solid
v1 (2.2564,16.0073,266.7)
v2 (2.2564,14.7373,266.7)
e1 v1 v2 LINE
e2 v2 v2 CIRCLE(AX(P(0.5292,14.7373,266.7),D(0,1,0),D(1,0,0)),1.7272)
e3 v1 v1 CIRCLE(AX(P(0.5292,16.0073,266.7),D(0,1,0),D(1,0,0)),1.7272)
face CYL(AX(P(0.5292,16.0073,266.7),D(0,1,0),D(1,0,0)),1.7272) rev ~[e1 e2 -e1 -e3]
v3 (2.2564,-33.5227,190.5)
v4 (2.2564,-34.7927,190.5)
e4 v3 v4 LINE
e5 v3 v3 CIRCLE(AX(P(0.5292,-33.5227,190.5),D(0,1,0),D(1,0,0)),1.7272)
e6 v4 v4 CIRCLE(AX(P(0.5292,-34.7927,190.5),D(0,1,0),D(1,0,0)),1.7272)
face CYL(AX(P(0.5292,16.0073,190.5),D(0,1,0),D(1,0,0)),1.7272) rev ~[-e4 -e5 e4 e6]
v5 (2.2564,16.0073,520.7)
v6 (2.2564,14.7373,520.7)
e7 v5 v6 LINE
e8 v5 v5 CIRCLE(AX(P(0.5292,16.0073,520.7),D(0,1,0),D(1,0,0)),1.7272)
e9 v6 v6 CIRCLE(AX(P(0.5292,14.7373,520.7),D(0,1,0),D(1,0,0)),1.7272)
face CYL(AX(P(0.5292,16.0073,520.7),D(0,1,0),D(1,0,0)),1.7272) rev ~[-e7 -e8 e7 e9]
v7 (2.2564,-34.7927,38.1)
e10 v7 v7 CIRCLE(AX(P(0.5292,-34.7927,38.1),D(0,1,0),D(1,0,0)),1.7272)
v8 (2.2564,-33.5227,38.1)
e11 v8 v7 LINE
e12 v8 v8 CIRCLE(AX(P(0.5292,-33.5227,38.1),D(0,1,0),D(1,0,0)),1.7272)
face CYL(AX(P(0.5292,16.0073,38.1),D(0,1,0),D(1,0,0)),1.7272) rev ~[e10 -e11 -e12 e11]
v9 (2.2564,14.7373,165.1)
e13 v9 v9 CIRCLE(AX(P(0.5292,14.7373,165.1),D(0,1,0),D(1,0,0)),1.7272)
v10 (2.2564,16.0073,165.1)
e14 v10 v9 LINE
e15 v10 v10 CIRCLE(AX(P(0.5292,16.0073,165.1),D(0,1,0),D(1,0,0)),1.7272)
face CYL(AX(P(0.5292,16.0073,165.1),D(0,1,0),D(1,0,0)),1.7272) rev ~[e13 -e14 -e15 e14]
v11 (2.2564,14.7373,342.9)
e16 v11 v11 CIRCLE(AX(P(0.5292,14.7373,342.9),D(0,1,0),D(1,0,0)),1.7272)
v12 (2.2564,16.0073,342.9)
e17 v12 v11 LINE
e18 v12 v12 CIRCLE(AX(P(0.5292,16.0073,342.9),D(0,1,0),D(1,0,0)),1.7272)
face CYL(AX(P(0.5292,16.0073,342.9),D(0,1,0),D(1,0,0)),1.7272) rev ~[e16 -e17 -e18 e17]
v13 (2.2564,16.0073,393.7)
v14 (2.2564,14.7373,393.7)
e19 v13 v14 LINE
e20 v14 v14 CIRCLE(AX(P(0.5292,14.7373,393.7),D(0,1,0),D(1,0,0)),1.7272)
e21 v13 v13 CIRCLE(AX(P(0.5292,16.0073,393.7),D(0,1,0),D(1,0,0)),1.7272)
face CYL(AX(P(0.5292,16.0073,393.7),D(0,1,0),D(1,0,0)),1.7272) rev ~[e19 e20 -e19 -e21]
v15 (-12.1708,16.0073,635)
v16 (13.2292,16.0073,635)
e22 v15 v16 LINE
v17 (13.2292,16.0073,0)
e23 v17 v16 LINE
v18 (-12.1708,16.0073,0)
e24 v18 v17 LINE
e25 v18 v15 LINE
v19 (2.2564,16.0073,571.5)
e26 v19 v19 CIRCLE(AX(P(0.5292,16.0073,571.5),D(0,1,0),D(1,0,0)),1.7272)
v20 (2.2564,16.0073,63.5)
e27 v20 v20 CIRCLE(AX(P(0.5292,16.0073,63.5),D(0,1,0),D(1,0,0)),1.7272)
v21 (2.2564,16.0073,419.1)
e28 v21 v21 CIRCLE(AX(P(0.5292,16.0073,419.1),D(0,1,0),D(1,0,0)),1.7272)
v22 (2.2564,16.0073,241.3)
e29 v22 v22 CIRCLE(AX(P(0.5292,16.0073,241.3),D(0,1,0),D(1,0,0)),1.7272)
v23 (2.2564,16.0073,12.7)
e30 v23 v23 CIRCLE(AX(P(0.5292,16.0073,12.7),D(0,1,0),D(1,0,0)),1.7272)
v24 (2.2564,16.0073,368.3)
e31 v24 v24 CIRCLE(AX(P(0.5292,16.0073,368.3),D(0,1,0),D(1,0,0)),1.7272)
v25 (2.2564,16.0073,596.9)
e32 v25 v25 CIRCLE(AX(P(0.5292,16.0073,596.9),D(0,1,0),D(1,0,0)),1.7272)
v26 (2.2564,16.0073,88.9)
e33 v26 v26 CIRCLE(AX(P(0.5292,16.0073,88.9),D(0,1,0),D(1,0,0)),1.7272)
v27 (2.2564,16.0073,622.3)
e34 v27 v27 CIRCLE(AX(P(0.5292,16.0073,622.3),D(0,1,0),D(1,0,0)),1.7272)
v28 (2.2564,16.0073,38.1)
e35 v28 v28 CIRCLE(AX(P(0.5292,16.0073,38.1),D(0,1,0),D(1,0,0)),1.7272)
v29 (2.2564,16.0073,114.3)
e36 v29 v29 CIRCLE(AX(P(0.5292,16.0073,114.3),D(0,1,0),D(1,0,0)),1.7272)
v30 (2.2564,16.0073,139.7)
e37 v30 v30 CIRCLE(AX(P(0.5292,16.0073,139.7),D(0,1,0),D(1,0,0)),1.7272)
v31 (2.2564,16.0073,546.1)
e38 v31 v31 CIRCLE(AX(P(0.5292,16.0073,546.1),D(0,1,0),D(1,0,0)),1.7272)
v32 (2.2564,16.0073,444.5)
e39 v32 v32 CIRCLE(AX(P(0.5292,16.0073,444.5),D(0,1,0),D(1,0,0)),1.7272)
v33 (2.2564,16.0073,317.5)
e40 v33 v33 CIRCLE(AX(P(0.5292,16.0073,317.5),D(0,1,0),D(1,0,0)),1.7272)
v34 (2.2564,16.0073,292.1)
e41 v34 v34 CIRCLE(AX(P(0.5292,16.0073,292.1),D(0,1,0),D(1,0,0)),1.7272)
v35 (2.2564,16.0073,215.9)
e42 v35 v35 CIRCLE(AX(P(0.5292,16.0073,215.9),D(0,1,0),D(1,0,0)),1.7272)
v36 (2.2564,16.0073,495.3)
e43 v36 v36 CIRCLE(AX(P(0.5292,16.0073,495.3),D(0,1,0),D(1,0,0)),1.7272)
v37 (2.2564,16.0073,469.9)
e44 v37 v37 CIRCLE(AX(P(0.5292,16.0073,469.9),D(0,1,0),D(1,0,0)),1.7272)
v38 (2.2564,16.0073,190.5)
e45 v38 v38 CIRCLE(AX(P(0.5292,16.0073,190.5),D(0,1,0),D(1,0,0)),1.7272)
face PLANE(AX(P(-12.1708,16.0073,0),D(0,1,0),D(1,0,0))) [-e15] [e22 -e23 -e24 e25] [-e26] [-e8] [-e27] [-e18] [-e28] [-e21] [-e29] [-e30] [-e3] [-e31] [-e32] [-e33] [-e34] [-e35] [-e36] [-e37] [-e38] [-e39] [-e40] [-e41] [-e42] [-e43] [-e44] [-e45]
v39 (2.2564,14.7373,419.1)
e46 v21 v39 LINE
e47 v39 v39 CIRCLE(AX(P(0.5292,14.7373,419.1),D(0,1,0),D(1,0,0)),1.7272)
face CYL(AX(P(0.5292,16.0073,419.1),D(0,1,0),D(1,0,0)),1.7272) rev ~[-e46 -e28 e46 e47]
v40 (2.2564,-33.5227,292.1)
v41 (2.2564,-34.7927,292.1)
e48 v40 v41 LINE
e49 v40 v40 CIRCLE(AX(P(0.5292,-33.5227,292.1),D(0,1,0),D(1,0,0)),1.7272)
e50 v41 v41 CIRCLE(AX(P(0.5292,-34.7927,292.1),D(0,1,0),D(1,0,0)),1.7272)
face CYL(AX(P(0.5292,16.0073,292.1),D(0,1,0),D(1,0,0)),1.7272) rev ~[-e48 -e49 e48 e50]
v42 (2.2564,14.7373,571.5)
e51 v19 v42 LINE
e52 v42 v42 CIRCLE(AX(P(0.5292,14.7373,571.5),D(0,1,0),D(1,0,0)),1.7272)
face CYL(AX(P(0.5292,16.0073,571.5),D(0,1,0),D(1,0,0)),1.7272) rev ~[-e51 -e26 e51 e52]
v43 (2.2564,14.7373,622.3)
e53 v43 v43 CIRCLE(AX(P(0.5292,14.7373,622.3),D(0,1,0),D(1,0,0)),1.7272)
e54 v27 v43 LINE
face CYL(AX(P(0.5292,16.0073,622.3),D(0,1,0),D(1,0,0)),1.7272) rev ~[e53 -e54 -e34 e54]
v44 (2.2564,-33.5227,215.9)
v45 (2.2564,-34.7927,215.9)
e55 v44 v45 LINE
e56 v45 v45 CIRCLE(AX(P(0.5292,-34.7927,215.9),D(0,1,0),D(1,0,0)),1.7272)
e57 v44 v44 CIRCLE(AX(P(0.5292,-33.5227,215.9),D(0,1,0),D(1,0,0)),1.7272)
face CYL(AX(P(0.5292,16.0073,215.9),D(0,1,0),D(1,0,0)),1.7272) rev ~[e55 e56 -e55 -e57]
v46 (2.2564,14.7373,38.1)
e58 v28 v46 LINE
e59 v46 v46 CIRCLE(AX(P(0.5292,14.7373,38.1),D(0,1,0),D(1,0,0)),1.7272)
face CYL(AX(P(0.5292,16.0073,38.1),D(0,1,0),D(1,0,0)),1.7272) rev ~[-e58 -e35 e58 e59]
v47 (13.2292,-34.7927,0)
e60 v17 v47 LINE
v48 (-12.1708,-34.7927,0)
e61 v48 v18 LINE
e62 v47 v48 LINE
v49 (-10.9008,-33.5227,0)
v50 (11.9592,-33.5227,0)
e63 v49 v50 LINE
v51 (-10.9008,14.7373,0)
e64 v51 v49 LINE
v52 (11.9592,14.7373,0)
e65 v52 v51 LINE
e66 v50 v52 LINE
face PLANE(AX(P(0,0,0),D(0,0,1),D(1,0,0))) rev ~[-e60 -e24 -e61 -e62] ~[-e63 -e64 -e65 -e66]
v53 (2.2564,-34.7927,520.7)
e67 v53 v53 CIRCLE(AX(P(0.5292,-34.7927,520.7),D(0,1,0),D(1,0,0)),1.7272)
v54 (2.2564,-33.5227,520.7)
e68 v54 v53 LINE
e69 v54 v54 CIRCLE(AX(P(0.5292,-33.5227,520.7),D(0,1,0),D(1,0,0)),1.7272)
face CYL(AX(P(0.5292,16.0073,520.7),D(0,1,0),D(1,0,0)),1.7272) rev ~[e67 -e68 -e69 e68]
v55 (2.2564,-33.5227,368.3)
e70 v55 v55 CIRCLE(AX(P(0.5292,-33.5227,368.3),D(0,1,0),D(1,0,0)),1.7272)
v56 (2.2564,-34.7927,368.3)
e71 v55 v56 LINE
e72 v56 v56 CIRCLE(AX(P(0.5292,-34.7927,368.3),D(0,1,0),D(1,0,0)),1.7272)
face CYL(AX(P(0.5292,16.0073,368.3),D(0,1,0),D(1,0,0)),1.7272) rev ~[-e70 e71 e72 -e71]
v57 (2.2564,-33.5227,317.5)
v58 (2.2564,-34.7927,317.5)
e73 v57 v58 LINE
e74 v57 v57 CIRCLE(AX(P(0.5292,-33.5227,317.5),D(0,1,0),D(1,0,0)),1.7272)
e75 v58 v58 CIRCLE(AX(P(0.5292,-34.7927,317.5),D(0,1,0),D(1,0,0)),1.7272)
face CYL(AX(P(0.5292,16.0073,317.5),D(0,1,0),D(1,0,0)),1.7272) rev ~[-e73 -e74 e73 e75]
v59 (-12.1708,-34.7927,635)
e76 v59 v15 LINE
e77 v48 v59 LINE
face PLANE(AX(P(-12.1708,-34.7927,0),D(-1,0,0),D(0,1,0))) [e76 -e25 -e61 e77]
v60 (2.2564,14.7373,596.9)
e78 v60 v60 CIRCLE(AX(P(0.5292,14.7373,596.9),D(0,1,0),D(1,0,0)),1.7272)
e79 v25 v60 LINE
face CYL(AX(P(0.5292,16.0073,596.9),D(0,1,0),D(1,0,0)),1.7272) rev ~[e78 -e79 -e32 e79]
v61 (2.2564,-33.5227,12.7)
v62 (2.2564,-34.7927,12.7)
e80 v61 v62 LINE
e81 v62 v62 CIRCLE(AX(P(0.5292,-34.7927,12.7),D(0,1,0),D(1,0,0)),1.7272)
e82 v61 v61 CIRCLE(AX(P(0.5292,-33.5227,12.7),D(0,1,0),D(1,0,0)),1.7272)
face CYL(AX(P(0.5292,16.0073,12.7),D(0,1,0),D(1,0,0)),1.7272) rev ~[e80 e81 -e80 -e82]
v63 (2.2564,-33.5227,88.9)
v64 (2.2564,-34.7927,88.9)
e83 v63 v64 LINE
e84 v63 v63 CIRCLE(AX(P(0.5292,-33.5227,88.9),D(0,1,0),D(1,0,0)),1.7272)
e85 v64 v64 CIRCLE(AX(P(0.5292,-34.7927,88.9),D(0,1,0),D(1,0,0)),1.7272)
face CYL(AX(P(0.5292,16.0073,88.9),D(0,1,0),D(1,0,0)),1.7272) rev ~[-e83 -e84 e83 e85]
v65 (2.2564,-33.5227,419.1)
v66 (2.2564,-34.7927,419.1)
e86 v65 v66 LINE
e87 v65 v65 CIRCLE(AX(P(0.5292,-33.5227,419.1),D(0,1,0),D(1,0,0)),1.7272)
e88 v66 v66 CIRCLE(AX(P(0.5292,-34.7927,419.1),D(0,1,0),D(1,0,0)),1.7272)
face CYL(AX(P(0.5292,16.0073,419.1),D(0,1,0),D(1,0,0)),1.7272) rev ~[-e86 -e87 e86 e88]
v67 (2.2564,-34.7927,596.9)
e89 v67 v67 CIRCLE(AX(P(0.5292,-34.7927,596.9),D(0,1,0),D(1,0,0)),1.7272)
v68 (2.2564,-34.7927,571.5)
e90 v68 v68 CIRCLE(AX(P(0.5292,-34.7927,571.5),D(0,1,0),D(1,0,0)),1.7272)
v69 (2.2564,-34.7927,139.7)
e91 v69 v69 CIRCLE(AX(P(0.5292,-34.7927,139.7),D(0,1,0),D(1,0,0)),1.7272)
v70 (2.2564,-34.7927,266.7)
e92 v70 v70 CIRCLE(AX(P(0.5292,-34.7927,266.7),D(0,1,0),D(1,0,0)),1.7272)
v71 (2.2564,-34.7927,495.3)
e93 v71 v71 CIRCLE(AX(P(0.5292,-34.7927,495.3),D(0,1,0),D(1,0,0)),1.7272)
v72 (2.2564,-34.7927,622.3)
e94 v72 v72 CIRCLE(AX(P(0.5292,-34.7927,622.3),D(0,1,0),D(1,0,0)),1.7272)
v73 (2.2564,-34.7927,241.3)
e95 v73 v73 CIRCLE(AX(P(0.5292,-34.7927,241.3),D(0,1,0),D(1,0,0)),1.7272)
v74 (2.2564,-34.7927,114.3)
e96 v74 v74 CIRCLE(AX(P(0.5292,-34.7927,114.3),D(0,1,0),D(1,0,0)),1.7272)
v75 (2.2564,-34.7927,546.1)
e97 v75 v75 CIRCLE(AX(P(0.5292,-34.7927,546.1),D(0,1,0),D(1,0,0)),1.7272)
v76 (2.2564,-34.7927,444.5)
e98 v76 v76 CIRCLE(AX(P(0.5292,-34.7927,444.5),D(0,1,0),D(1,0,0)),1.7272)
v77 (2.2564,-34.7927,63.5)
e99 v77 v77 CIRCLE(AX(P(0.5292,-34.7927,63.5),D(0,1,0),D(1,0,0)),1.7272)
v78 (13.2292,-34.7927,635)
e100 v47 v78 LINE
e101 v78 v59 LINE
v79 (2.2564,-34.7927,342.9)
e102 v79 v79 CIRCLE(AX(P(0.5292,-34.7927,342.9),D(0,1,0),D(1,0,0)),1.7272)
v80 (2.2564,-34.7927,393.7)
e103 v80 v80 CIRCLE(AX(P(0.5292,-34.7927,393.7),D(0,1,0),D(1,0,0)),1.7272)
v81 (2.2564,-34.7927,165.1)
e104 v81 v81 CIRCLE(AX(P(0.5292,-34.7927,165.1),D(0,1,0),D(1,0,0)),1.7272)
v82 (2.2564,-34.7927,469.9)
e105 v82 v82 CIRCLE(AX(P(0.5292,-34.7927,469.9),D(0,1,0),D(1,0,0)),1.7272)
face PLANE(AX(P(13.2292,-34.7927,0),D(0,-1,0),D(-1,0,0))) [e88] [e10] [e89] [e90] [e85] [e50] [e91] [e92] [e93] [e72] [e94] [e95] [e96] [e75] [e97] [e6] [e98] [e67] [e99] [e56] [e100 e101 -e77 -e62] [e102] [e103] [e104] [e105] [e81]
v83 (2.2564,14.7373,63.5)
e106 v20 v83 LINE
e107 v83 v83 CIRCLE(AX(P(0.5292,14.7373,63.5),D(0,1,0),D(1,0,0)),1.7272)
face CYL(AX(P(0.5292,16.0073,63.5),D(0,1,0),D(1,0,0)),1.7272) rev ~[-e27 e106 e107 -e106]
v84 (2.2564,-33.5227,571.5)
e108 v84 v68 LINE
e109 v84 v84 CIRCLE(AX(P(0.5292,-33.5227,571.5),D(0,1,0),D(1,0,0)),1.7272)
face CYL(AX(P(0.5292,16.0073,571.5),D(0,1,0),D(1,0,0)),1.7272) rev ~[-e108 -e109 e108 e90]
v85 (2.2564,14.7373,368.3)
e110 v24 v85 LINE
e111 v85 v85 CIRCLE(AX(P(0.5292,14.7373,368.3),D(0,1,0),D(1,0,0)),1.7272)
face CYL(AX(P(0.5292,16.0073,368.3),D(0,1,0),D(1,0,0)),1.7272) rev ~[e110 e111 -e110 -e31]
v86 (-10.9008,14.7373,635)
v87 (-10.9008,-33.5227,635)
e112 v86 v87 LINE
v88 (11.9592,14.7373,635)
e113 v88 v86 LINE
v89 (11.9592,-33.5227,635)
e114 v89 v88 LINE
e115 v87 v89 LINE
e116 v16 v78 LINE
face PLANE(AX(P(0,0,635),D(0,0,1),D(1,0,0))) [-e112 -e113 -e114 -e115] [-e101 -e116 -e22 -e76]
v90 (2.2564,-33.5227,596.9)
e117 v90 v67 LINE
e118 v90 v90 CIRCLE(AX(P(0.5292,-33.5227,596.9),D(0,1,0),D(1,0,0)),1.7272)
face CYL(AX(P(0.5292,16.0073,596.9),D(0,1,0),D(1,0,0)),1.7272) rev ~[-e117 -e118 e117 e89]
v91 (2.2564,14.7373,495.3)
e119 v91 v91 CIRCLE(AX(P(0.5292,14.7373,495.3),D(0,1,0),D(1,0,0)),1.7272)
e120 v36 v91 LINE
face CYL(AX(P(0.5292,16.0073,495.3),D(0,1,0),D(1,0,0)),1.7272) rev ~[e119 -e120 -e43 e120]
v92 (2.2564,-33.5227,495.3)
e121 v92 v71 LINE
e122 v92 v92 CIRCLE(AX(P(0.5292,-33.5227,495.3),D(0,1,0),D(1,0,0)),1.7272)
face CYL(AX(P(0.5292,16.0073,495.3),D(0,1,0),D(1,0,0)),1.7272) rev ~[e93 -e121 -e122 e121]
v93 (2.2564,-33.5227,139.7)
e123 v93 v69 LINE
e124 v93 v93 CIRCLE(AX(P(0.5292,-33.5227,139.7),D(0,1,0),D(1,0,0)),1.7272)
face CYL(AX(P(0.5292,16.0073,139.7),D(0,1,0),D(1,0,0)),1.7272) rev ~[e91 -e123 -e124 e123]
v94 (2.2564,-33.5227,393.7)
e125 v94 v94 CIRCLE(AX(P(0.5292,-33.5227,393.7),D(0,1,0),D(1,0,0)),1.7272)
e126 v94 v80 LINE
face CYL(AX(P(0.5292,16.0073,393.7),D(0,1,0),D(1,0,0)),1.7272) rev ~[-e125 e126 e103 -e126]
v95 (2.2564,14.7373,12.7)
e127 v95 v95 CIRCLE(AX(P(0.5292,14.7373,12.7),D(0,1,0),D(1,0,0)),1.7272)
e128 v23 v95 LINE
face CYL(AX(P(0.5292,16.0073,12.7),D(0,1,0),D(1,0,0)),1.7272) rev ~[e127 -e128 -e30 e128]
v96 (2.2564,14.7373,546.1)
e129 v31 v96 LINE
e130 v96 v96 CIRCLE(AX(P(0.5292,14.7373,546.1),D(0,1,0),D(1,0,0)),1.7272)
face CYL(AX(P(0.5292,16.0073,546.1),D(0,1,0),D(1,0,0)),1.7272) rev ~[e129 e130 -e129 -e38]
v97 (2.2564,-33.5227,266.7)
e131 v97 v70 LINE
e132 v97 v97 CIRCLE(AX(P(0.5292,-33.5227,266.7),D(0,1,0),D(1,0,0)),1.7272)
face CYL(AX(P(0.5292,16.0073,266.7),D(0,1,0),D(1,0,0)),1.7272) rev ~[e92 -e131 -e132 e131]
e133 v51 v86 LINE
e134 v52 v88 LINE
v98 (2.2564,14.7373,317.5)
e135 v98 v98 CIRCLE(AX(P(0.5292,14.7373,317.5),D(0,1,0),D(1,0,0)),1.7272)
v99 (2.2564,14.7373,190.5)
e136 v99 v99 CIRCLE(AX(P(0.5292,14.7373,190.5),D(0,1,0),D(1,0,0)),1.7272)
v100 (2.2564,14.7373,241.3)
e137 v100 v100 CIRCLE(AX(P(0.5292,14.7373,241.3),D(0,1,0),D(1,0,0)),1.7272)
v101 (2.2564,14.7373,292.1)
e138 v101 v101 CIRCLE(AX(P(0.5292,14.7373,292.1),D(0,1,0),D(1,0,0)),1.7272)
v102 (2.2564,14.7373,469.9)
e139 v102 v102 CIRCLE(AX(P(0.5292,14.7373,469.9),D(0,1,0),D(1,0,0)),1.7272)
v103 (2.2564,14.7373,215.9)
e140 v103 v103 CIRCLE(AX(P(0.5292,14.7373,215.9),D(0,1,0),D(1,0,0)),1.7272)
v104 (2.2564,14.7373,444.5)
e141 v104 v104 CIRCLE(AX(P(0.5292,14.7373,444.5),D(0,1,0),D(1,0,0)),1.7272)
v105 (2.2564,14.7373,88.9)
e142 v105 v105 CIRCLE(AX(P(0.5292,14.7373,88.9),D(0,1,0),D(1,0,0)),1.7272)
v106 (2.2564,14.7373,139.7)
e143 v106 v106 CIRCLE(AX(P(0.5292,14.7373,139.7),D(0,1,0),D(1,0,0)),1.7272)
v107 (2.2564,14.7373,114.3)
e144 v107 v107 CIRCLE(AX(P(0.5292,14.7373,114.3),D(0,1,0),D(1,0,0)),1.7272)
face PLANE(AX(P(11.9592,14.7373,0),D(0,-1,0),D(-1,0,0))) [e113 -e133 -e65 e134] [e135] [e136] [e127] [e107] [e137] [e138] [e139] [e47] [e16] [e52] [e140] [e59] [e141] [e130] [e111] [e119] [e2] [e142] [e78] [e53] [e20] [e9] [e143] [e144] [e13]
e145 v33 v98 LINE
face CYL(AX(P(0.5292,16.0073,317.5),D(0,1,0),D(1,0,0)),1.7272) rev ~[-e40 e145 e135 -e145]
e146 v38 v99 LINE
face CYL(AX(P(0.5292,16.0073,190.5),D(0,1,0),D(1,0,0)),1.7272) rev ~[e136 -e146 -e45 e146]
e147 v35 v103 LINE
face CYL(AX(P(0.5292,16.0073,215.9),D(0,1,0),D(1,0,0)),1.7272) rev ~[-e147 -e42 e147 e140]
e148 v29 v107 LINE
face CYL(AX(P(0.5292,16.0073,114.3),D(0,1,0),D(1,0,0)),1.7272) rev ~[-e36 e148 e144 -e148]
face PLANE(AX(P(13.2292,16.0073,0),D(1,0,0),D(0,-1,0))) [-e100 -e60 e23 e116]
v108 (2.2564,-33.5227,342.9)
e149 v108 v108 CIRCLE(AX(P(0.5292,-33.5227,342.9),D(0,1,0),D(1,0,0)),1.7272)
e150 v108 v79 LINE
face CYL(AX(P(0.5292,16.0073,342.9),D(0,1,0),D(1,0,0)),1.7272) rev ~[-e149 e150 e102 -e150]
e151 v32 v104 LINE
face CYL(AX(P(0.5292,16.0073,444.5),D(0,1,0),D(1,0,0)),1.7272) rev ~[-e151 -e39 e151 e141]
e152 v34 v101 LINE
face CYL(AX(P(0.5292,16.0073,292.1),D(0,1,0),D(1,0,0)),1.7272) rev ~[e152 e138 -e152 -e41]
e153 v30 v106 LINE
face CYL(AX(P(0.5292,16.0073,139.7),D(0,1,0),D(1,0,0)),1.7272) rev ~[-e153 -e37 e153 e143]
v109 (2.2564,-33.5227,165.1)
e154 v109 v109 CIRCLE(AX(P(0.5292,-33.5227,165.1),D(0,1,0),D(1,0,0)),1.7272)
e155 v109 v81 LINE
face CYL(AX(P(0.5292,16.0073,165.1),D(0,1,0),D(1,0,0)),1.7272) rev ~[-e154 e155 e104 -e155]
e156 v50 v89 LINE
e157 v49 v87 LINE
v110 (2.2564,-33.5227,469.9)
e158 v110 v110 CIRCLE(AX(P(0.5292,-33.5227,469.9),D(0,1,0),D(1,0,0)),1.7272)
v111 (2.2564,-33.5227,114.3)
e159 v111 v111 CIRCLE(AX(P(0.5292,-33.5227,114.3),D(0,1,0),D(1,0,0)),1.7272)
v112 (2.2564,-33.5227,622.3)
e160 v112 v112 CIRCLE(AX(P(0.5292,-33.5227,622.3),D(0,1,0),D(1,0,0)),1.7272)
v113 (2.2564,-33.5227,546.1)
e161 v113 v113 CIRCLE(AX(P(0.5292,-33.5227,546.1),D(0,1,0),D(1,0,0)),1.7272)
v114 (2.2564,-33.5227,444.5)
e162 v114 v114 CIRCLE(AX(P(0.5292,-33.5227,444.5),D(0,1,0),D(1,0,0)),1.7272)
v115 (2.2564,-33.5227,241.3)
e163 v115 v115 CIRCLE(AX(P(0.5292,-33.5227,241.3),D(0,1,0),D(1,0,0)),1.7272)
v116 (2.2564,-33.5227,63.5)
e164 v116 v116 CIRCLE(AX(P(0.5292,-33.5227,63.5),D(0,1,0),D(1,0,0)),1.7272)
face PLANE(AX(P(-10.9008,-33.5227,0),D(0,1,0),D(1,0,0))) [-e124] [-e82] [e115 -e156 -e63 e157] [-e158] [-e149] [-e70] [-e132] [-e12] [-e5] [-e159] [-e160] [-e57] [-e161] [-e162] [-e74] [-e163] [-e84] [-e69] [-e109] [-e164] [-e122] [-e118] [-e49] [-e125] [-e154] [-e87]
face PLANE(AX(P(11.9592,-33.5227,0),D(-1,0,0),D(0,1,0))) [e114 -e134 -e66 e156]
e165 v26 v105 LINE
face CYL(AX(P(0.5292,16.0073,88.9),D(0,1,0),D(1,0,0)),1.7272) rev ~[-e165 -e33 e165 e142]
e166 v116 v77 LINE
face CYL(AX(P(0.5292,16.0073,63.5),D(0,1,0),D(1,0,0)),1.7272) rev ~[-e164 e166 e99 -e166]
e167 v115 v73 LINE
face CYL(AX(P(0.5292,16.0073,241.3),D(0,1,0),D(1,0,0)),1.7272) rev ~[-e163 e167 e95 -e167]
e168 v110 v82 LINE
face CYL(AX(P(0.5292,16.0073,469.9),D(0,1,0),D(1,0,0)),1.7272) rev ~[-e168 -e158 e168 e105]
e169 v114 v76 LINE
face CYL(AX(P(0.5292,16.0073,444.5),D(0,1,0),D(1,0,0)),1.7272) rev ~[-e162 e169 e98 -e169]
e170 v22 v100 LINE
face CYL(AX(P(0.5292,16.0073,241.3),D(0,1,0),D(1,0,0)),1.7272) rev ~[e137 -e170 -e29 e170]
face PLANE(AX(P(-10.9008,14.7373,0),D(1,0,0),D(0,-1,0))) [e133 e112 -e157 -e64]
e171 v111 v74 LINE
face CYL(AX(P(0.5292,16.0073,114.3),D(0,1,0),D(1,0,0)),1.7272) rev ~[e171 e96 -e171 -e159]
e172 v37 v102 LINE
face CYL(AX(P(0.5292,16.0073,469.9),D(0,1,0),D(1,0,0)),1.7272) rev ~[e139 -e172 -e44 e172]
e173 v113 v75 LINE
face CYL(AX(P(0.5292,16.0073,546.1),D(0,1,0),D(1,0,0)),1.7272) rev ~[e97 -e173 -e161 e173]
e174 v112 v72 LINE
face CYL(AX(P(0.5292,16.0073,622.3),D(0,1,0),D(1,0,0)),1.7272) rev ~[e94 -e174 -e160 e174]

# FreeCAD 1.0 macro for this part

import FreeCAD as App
import Part
import Sketcher

V = App.Vector
Q = App.Units.Quantity


def add_polygon(sketch, points):
    """Adds a closed chain of lines whose ends are joined by coincident constraints."""
    first, n = sketch.GeometryCount, len(points)
    for a, b in zip(points, points[1:] + points[:1]):
        sketch.addGeometry(Part.LineSegment(App.Vector(*a, 0), App.Vector(*b, 0)), False)
    for i in range(n):
        sketch.addConstraint(Sketcher.Constraint("Coincident", first + i, 2, first + (i + 1) % n, 1))

doc = App.newDocument("Part")
body = doc.addObject("PartDesign::Body", "Body")

sketch1 = body.newObject("Sketcher::SketchObject", "Sketch")
sketch1.AttachmentSupport = (doc.getObject("XY_Plane"), [""])
sketch1.MapMode = "FlatFace"
add_polygon(sketch1, [(13.2292, 16.0073), (-12.1708, 16.0073), (-12.1708, -34.7927), (13.2292, -34.7927)])
add_polygon(sketch1, [(-10.9008, 14.7373), (11.9592, 14.7373), (11.9592, -33.5227), (-10.9008, -33.5227)])
sketch1.addConstraint([
    Sketcher.Constraint("Horizontal", 0),
    Sketcher.Constraint("Vertical", 1),
    Sketcher.Constraint("Horizontal", 2),
    Sketcher.Constraint("Vertical", 3),
    Sketcher.Constraint("Horizontal", 4),
    Sketcher.Constraint("Vertical", 5),
    Sketcher.Constraint("Horizontal", 6),
    Sketcher.Constraint("Vertical", 7),
    Sketcher.Constraint("DistanceX", 0, 2, 0, 1, Q("1 in")),
    Sketcher.Constraint("DistanceY", 1, 2, 1, 1, Q("2 in")),
    Sketcher.Constraint("DistanceX", 4, 2, 3, 2, Q("0.05 in")),
    Sketcher.Constraint("DistanceY", 4, 2, 3, 2, Q("0.05 in")),
    Sketcher.Constraint("DistanceY", 2, 2, 5, 2, Q("0.05 in")),
    Sketcher.Constraint("DistanceX", 1, 2, 6, 2, Q("0.05 in")),
    Sketcher.Constraint("DistanceY", -1, 1, 0, 2, Q("0.6302 in")),
    Sketcher.Constraint("DistanceX", 0, 2, -1, 1, Q("12.1708 mm")),
])
pad1 = body.newObject("PartDesign::Pad", "Pad")
pad1.Profile = sketch1
pad1.Length = Q("25 in")

sketch2 = body.newObject("Sketcher::SketchObject", "Sketch001")
sketch2.AttachmentSupport = (doc.getObject("XZ_Plane"), [""])
sketch2.MapMode = "FlatFace"
sketch2.AttachmentOffset = App.Placement(V(0, 0, -0.6302087 * 25.4), App.Rotation())
sketch2.addGeometry(Part.Circle(V(0.5292, 12.7, 0), V(0, 0, 1), 1.7272), False)
sketch2.addConstraint([
    Sketcher.Constraint("Diameter", 0, Q("0.136 in")),
    Sketcher.Constraint("DistanceY", -1, 1, 0, 3, Q("0.5 in")),
    Sketcher.Constraint("DistanceX", -1, 1, 0, 3, Q("0.5292 mm")),
])
pocket1 = body.newObject("PartDesign::Pocket", "Pocket")
pocket1.Profile = sketch2
pocket1.Type = "ThroughAll"
pocket1.Reversed = True
doc.recompute()

linearpattern = body.newObject("PartDesign::LinearPattern", "LinearPattern")
linearpattern.Originals = [pocket1]
linearpattern.Direction = (doc.getObject("Z_Axis"), [""])
linearpattern.Mode = "offset"
linearpattern.Offset = Q("1 in")
linearpattern.Occurrences = 64
body.Tip = linearpattern

doc.recompute()
